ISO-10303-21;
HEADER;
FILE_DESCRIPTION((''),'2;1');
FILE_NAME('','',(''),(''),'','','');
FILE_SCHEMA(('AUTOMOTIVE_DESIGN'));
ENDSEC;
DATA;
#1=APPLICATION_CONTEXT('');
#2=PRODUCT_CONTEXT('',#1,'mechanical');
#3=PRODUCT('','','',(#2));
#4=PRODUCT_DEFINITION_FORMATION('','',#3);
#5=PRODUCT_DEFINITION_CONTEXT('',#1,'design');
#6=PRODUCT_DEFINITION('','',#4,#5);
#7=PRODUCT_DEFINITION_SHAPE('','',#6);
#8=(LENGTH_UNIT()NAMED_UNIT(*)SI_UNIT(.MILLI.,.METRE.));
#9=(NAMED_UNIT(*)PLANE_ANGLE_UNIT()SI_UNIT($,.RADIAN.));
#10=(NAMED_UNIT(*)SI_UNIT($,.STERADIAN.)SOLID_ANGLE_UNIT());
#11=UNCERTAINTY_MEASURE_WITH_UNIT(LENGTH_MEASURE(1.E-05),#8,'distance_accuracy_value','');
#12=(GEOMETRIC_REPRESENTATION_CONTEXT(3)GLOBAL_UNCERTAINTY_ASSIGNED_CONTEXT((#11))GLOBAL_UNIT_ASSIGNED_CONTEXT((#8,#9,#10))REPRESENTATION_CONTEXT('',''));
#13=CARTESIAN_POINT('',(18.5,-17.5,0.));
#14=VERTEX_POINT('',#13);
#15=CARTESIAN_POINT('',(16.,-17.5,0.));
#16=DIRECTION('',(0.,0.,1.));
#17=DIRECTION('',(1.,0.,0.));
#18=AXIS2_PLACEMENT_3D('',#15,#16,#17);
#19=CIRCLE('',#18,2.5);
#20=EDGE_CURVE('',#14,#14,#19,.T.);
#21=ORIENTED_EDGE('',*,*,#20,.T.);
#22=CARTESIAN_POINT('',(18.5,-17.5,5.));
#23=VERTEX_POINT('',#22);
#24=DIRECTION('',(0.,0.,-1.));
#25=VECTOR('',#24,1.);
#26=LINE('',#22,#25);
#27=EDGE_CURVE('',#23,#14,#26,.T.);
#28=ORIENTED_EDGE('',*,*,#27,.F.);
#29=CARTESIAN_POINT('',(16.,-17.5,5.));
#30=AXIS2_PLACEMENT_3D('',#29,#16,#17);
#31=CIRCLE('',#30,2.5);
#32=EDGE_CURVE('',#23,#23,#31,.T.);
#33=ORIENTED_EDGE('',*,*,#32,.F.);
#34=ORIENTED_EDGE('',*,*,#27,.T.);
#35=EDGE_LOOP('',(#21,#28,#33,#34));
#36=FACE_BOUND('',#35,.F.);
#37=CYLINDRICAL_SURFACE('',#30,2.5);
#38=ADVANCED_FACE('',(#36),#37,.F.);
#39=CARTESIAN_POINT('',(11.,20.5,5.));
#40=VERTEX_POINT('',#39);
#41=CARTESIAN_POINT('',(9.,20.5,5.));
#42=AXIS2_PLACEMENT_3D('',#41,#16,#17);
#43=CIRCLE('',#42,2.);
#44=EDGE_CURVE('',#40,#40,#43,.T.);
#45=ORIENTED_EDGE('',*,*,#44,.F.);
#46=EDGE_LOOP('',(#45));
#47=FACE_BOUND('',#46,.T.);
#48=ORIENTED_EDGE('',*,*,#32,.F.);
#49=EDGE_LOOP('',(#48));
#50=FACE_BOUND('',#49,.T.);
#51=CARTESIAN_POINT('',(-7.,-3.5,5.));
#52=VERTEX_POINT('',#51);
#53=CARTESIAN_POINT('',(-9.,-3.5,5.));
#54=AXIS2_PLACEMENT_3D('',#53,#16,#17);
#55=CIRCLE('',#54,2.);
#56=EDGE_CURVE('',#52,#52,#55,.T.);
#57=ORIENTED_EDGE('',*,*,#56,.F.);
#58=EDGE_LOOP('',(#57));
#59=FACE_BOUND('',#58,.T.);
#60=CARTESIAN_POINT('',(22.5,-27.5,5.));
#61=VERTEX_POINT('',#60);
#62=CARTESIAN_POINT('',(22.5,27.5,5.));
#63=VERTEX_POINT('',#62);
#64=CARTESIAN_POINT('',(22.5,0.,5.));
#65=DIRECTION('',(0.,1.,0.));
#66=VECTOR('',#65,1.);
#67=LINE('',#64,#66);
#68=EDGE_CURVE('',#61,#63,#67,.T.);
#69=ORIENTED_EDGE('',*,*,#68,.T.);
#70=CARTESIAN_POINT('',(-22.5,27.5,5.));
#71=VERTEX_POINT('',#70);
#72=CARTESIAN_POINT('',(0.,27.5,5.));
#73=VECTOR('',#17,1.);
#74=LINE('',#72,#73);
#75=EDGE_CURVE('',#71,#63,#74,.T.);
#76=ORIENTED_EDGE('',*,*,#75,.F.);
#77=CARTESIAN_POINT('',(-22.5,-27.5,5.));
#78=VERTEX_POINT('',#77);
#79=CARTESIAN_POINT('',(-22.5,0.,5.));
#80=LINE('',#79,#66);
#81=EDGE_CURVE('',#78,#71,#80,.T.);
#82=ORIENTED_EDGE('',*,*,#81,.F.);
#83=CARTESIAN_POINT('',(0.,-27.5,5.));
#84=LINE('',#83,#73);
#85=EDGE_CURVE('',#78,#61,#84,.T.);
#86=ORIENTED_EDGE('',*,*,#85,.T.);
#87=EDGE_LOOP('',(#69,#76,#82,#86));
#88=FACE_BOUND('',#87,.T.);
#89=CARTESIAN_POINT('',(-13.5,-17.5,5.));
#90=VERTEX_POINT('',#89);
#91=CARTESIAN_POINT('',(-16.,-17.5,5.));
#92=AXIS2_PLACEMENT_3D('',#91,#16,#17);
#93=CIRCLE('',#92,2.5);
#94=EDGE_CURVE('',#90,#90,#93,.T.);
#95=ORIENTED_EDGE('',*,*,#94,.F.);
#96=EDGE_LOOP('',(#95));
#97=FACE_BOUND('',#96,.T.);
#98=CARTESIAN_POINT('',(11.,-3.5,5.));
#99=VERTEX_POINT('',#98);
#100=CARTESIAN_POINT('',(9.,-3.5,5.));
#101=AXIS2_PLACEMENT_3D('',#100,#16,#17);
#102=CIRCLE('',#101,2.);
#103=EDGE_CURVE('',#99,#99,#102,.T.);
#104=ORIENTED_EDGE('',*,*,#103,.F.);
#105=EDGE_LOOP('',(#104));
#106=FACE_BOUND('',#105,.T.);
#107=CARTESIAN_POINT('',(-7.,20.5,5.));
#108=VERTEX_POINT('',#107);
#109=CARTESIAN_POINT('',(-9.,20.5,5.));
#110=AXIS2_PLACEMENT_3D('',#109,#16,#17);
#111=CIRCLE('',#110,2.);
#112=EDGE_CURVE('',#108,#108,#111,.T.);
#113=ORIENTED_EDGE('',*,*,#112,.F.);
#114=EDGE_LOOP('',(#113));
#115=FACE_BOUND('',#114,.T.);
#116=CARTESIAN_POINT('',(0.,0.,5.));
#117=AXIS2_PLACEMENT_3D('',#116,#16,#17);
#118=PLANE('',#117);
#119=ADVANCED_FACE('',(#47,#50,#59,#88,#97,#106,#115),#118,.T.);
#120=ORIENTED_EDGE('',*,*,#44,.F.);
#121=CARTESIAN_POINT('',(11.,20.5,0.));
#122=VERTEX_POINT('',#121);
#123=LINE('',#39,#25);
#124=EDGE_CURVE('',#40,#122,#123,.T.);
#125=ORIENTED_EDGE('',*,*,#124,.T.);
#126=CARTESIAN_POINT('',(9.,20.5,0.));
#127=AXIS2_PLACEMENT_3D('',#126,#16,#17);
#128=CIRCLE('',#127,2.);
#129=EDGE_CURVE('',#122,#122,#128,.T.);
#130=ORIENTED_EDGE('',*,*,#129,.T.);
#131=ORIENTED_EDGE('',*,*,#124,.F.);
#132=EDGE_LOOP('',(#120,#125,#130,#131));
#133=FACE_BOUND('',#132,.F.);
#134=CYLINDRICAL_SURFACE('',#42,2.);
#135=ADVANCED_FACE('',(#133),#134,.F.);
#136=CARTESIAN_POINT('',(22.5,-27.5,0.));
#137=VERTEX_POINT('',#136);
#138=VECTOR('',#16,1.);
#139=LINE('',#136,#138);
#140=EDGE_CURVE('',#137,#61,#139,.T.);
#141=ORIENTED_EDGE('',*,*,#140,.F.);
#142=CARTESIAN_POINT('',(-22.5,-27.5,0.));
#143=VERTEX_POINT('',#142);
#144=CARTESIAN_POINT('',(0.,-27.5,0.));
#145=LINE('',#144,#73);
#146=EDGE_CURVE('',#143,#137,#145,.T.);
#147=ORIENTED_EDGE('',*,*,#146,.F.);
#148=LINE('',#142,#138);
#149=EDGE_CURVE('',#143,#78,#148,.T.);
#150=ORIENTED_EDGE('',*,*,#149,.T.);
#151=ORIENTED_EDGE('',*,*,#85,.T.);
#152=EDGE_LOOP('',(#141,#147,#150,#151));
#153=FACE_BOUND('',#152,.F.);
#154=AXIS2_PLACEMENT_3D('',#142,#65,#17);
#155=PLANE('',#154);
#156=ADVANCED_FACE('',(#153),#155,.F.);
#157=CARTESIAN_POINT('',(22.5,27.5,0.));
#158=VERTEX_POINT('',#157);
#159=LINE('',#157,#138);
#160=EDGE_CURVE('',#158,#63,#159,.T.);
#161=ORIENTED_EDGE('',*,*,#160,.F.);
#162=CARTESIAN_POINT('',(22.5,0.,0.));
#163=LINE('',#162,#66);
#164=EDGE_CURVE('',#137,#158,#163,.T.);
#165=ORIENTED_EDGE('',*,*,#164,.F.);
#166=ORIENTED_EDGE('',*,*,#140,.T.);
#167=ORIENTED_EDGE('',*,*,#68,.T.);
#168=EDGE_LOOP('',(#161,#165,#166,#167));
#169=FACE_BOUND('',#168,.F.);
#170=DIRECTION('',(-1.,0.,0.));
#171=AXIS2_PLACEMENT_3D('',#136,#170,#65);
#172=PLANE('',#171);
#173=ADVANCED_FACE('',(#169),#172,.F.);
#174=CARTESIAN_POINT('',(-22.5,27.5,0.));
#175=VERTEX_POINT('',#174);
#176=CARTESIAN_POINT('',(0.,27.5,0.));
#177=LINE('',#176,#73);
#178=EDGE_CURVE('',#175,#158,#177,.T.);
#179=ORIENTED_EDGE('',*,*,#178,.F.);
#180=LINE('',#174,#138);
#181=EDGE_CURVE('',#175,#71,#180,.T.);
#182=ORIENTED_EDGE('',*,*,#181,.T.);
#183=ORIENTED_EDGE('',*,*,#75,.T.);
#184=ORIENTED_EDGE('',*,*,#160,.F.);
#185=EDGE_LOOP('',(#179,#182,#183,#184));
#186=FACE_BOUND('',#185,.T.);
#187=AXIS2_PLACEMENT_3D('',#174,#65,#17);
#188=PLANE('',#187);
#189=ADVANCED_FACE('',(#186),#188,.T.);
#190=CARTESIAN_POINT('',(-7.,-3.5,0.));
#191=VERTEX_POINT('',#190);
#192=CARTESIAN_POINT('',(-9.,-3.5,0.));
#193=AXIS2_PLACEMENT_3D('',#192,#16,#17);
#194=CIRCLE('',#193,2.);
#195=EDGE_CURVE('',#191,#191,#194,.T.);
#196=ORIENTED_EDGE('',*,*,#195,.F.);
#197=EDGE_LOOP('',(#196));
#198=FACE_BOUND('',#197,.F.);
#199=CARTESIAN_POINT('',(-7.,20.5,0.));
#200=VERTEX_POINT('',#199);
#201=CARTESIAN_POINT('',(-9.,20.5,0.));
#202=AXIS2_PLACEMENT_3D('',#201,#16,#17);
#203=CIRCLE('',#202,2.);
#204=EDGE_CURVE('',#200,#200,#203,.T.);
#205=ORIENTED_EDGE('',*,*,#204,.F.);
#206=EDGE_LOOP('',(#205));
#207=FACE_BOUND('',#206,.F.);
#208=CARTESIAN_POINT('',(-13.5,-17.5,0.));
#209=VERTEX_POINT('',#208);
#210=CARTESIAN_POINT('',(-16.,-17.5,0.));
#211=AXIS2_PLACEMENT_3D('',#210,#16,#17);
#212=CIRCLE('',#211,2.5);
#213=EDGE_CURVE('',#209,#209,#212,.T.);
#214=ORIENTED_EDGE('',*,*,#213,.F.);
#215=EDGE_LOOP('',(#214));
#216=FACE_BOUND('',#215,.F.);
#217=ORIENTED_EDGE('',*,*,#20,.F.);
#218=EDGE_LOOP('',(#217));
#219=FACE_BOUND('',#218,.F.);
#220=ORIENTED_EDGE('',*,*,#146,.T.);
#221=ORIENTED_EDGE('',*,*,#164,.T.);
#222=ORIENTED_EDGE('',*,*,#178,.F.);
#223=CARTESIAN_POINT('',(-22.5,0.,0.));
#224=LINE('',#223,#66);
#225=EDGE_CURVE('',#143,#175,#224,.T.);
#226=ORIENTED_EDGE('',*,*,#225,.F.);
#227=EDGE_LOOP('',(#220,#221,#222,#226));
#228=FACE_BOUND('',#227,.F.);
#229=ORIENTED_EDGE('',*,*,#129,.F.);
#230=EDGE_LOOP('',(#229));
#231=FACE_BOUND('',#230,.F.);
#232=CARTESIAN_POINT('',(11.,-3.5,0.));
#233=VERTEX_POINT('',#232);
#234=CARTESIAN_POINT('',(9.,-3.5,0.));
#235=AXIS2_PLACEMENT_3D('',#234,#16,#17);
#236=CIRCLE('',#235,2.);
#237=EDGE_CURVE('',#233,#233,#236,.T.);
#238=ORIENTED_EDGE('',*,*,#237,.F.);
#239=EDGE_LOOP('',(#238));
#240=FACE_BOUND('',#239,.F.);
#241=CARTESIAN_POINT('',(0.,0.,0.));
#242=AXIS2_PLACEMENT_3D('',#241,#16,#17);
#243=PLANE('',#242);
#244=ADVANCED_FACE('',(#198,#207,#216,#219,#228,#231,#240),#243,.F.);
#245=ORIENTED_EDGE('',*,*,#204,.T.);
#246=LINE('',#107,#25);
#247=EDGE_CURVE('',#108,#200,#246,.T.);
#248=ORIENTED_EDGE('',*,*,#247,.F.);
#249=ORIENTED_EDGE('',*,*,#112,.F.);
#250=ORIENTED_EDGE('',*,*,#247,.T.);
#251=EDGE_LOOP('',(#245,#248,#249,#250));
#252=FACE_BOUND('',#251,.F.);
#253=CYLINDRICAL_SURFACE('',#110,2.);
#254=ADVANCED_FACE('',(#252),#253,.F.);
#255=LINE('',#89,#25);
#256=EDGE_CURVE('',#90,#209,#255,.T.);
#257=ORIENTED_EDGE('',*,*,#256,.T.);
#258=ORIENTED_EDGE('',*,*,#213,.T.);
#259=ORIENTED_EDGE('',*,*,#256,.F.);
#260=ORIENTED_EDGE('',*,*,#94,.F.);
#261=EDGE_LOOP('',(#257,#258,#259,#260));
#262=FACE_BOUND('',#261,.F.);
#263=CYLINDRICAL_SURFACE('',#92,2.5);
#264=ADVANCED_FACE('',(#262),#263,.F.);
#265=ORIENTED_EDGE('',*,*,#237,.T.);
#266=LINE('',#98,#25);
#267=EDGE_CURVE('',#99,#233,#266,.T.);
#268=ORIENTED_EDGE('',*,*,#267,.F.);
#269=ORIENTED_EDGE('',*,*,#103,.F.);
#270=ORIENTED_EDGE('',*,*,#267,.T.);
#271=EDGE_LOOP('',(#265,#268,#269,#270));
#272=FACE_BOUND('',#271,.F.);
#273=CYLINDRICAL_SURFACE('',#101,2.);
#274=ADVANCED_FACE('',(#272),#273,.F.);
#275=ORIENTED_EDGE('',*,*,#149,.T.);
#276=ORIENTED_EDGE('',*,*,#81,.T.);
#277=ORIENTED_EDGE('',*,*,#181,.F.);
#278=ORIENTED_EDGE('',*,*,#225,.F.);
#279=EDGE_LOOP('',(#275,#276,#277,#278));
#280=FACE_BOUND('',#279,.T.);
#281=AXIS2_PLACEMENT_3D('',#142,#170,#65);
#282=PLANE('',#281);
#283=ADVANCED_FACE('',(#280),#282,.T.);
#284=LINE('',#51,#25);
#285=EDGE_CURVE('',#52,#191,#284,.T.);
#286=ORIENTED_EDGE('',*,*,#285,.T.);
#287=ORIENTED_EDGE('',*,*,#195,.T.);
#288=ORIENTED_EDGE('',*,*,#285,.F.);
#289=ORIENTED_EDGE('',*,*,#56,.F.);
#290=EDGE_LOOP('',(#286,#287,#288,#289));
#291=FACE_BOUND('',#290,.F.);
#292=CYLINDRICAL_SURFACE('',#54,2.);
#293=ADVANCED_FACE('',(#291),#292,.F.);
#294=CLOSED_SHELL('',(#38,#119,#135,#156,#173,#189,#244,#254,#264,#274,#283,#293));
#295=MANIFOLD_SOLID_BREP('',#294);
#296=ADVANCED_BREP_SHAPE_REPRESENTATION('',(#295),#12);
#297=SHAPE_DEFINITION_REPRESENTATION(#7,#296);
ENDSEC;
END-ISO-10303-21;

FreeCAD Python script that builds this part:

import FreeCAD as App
import Part
import Sketcher

V = App.Vector
Q = App.Units.Quantity


def add_polygon(sketch, points):
    """Adds a closed chain of lines whose ends are joined by coincident constraints."""
    first, n = sketch.GeometryCount, len(points)
    for a, b in zip(points, points[1:] + points[:1]):
        sketch.addGeometry(Part.LineSegment(App.Vector(*a, 0), App.Vector(*b, 0)), False)
    for i in range(n):
        sketch.addConstraint(Sketcher.Constraint("Coincident", first + i, 2, first + (i + 1) % n, 1))

doc = App.newDocument("Part")
body = doc.addObject("PartDesign::Body", "Body")

# Sketch on XY plane
sketch1 = body.newObject("Sketcher::SketchObject", "Sketch")
sketch1.AttachmentSupport = (doc.getObject("XY_Plane"), [""])
sketch1.MapMode = "FlatFace"
add_polygon(sketch1, [(-22.5, 27.5), (-22.5, -27.5), (22.5, -27.5), (22.5, 27.5)])  # lines 0-3
sketch1.addConstraint([
    Sketcher.Constraint("Vertical", 0),
    Sketcher.Constraint("Horizontal", 1),
    Sketcher.Constraint("Vertical", 2),
    Sketcher.Constraint("Horizontal", 3),
    Sketcher.Constraint("Symmetric", 0, 2, 2, 2, -1, 1),
    Sketcher.Constraint("DistanceX", 1, 1, 1, 2, Q("45 mm")),
    Sketcher.Constraint("DistanceY", 0, 2, 0, 1, Q("55 mm")),
])
pad1 = body.newObject("PartDesign::Pad", "Pad")
pad1.Profile = sketch1
pad1.Length = 5

# Sketch on XY plane
sketch2 = body.newObject("Sketcher::SketchObject", "Sketch001")
sketch2.AttachmentSupport = (doc.getObject("XY_Plane"), [""])
sketch2.MapMode = "FlatFace"
sketch2.AttachmentOffset = App.Placement(V(0, 0, 5), App.Rotation())
sketch2.addGeometry([
    Part.Circle(V(-9, 20.5, 0), V(0, 0, 1), 2),  # 0
    Part.Circle(V(9, 20.5, 0), V(0, 0, 1), 2),  # 1
    Part.Circle(V(-9, -3.5, 0), V(0, 0, 1), 2),  # 2
    Part.Circle(V(-16, -17.5, 0), V(0, 0, 1), 2.5),  # 3
    Part.Circle(V(9, -3.5, 0), V(0, 0, 1), 2),  # 4
    Part.Circle(V(16, -17.5, 0), V(0, 0, 1), 2.5),  # 5
], False)
sketch2.addConstraint([
    Sketcher.Constraint("Equal", 0, 1),
    Sketcher.Constraint("Equal", 1, 2),
    Sketcher.Constraint("Equal", 2, 4),
    Sketcher.Constraint("Equal", 3, 5),
    Sketcher.Constraint("Symmetric", 0, 3, 1, 3, -2),
    Sketcher.Constraint("Symmetric", 2, 3, 4, 3, -2),
    Sketcher.Constraint("Symmetric", 3, 3, 5, 3, -2),
    Sketcher.Constraint("Vertical", 0, 3, 2, 3),
    Sketcher.Constraint("Diameter", 0, Q("4 mm")),
    Sketcher.Constraint("Diameter", 3, Q("5 mm")),
    Sketcher.Constraint("DistanceX", 0, 3, -1, 1, Q("9 mm")),
    Sketcher.Constraint("DistanceX", 3, 3, -1, 1, Q("16 mm")),
    Sketcher.Constraint("DistanceY", 2, 3, 0, 3, Q("24 mm")),
    Sketcher.Constraint("DistanceY", 3, 3, 2, 3, Q("14 mm")),
    Sketcher.Constraint("DistanceY", -1, 1, 0, 3, Q("20.5 mm")),
])
pocket1 = body.newObject("PartDesign::Pocket", "Pocket")
pocket1.Profile = sketch2
pocket1.Type = "ThroughAll"

doc.recompute()
